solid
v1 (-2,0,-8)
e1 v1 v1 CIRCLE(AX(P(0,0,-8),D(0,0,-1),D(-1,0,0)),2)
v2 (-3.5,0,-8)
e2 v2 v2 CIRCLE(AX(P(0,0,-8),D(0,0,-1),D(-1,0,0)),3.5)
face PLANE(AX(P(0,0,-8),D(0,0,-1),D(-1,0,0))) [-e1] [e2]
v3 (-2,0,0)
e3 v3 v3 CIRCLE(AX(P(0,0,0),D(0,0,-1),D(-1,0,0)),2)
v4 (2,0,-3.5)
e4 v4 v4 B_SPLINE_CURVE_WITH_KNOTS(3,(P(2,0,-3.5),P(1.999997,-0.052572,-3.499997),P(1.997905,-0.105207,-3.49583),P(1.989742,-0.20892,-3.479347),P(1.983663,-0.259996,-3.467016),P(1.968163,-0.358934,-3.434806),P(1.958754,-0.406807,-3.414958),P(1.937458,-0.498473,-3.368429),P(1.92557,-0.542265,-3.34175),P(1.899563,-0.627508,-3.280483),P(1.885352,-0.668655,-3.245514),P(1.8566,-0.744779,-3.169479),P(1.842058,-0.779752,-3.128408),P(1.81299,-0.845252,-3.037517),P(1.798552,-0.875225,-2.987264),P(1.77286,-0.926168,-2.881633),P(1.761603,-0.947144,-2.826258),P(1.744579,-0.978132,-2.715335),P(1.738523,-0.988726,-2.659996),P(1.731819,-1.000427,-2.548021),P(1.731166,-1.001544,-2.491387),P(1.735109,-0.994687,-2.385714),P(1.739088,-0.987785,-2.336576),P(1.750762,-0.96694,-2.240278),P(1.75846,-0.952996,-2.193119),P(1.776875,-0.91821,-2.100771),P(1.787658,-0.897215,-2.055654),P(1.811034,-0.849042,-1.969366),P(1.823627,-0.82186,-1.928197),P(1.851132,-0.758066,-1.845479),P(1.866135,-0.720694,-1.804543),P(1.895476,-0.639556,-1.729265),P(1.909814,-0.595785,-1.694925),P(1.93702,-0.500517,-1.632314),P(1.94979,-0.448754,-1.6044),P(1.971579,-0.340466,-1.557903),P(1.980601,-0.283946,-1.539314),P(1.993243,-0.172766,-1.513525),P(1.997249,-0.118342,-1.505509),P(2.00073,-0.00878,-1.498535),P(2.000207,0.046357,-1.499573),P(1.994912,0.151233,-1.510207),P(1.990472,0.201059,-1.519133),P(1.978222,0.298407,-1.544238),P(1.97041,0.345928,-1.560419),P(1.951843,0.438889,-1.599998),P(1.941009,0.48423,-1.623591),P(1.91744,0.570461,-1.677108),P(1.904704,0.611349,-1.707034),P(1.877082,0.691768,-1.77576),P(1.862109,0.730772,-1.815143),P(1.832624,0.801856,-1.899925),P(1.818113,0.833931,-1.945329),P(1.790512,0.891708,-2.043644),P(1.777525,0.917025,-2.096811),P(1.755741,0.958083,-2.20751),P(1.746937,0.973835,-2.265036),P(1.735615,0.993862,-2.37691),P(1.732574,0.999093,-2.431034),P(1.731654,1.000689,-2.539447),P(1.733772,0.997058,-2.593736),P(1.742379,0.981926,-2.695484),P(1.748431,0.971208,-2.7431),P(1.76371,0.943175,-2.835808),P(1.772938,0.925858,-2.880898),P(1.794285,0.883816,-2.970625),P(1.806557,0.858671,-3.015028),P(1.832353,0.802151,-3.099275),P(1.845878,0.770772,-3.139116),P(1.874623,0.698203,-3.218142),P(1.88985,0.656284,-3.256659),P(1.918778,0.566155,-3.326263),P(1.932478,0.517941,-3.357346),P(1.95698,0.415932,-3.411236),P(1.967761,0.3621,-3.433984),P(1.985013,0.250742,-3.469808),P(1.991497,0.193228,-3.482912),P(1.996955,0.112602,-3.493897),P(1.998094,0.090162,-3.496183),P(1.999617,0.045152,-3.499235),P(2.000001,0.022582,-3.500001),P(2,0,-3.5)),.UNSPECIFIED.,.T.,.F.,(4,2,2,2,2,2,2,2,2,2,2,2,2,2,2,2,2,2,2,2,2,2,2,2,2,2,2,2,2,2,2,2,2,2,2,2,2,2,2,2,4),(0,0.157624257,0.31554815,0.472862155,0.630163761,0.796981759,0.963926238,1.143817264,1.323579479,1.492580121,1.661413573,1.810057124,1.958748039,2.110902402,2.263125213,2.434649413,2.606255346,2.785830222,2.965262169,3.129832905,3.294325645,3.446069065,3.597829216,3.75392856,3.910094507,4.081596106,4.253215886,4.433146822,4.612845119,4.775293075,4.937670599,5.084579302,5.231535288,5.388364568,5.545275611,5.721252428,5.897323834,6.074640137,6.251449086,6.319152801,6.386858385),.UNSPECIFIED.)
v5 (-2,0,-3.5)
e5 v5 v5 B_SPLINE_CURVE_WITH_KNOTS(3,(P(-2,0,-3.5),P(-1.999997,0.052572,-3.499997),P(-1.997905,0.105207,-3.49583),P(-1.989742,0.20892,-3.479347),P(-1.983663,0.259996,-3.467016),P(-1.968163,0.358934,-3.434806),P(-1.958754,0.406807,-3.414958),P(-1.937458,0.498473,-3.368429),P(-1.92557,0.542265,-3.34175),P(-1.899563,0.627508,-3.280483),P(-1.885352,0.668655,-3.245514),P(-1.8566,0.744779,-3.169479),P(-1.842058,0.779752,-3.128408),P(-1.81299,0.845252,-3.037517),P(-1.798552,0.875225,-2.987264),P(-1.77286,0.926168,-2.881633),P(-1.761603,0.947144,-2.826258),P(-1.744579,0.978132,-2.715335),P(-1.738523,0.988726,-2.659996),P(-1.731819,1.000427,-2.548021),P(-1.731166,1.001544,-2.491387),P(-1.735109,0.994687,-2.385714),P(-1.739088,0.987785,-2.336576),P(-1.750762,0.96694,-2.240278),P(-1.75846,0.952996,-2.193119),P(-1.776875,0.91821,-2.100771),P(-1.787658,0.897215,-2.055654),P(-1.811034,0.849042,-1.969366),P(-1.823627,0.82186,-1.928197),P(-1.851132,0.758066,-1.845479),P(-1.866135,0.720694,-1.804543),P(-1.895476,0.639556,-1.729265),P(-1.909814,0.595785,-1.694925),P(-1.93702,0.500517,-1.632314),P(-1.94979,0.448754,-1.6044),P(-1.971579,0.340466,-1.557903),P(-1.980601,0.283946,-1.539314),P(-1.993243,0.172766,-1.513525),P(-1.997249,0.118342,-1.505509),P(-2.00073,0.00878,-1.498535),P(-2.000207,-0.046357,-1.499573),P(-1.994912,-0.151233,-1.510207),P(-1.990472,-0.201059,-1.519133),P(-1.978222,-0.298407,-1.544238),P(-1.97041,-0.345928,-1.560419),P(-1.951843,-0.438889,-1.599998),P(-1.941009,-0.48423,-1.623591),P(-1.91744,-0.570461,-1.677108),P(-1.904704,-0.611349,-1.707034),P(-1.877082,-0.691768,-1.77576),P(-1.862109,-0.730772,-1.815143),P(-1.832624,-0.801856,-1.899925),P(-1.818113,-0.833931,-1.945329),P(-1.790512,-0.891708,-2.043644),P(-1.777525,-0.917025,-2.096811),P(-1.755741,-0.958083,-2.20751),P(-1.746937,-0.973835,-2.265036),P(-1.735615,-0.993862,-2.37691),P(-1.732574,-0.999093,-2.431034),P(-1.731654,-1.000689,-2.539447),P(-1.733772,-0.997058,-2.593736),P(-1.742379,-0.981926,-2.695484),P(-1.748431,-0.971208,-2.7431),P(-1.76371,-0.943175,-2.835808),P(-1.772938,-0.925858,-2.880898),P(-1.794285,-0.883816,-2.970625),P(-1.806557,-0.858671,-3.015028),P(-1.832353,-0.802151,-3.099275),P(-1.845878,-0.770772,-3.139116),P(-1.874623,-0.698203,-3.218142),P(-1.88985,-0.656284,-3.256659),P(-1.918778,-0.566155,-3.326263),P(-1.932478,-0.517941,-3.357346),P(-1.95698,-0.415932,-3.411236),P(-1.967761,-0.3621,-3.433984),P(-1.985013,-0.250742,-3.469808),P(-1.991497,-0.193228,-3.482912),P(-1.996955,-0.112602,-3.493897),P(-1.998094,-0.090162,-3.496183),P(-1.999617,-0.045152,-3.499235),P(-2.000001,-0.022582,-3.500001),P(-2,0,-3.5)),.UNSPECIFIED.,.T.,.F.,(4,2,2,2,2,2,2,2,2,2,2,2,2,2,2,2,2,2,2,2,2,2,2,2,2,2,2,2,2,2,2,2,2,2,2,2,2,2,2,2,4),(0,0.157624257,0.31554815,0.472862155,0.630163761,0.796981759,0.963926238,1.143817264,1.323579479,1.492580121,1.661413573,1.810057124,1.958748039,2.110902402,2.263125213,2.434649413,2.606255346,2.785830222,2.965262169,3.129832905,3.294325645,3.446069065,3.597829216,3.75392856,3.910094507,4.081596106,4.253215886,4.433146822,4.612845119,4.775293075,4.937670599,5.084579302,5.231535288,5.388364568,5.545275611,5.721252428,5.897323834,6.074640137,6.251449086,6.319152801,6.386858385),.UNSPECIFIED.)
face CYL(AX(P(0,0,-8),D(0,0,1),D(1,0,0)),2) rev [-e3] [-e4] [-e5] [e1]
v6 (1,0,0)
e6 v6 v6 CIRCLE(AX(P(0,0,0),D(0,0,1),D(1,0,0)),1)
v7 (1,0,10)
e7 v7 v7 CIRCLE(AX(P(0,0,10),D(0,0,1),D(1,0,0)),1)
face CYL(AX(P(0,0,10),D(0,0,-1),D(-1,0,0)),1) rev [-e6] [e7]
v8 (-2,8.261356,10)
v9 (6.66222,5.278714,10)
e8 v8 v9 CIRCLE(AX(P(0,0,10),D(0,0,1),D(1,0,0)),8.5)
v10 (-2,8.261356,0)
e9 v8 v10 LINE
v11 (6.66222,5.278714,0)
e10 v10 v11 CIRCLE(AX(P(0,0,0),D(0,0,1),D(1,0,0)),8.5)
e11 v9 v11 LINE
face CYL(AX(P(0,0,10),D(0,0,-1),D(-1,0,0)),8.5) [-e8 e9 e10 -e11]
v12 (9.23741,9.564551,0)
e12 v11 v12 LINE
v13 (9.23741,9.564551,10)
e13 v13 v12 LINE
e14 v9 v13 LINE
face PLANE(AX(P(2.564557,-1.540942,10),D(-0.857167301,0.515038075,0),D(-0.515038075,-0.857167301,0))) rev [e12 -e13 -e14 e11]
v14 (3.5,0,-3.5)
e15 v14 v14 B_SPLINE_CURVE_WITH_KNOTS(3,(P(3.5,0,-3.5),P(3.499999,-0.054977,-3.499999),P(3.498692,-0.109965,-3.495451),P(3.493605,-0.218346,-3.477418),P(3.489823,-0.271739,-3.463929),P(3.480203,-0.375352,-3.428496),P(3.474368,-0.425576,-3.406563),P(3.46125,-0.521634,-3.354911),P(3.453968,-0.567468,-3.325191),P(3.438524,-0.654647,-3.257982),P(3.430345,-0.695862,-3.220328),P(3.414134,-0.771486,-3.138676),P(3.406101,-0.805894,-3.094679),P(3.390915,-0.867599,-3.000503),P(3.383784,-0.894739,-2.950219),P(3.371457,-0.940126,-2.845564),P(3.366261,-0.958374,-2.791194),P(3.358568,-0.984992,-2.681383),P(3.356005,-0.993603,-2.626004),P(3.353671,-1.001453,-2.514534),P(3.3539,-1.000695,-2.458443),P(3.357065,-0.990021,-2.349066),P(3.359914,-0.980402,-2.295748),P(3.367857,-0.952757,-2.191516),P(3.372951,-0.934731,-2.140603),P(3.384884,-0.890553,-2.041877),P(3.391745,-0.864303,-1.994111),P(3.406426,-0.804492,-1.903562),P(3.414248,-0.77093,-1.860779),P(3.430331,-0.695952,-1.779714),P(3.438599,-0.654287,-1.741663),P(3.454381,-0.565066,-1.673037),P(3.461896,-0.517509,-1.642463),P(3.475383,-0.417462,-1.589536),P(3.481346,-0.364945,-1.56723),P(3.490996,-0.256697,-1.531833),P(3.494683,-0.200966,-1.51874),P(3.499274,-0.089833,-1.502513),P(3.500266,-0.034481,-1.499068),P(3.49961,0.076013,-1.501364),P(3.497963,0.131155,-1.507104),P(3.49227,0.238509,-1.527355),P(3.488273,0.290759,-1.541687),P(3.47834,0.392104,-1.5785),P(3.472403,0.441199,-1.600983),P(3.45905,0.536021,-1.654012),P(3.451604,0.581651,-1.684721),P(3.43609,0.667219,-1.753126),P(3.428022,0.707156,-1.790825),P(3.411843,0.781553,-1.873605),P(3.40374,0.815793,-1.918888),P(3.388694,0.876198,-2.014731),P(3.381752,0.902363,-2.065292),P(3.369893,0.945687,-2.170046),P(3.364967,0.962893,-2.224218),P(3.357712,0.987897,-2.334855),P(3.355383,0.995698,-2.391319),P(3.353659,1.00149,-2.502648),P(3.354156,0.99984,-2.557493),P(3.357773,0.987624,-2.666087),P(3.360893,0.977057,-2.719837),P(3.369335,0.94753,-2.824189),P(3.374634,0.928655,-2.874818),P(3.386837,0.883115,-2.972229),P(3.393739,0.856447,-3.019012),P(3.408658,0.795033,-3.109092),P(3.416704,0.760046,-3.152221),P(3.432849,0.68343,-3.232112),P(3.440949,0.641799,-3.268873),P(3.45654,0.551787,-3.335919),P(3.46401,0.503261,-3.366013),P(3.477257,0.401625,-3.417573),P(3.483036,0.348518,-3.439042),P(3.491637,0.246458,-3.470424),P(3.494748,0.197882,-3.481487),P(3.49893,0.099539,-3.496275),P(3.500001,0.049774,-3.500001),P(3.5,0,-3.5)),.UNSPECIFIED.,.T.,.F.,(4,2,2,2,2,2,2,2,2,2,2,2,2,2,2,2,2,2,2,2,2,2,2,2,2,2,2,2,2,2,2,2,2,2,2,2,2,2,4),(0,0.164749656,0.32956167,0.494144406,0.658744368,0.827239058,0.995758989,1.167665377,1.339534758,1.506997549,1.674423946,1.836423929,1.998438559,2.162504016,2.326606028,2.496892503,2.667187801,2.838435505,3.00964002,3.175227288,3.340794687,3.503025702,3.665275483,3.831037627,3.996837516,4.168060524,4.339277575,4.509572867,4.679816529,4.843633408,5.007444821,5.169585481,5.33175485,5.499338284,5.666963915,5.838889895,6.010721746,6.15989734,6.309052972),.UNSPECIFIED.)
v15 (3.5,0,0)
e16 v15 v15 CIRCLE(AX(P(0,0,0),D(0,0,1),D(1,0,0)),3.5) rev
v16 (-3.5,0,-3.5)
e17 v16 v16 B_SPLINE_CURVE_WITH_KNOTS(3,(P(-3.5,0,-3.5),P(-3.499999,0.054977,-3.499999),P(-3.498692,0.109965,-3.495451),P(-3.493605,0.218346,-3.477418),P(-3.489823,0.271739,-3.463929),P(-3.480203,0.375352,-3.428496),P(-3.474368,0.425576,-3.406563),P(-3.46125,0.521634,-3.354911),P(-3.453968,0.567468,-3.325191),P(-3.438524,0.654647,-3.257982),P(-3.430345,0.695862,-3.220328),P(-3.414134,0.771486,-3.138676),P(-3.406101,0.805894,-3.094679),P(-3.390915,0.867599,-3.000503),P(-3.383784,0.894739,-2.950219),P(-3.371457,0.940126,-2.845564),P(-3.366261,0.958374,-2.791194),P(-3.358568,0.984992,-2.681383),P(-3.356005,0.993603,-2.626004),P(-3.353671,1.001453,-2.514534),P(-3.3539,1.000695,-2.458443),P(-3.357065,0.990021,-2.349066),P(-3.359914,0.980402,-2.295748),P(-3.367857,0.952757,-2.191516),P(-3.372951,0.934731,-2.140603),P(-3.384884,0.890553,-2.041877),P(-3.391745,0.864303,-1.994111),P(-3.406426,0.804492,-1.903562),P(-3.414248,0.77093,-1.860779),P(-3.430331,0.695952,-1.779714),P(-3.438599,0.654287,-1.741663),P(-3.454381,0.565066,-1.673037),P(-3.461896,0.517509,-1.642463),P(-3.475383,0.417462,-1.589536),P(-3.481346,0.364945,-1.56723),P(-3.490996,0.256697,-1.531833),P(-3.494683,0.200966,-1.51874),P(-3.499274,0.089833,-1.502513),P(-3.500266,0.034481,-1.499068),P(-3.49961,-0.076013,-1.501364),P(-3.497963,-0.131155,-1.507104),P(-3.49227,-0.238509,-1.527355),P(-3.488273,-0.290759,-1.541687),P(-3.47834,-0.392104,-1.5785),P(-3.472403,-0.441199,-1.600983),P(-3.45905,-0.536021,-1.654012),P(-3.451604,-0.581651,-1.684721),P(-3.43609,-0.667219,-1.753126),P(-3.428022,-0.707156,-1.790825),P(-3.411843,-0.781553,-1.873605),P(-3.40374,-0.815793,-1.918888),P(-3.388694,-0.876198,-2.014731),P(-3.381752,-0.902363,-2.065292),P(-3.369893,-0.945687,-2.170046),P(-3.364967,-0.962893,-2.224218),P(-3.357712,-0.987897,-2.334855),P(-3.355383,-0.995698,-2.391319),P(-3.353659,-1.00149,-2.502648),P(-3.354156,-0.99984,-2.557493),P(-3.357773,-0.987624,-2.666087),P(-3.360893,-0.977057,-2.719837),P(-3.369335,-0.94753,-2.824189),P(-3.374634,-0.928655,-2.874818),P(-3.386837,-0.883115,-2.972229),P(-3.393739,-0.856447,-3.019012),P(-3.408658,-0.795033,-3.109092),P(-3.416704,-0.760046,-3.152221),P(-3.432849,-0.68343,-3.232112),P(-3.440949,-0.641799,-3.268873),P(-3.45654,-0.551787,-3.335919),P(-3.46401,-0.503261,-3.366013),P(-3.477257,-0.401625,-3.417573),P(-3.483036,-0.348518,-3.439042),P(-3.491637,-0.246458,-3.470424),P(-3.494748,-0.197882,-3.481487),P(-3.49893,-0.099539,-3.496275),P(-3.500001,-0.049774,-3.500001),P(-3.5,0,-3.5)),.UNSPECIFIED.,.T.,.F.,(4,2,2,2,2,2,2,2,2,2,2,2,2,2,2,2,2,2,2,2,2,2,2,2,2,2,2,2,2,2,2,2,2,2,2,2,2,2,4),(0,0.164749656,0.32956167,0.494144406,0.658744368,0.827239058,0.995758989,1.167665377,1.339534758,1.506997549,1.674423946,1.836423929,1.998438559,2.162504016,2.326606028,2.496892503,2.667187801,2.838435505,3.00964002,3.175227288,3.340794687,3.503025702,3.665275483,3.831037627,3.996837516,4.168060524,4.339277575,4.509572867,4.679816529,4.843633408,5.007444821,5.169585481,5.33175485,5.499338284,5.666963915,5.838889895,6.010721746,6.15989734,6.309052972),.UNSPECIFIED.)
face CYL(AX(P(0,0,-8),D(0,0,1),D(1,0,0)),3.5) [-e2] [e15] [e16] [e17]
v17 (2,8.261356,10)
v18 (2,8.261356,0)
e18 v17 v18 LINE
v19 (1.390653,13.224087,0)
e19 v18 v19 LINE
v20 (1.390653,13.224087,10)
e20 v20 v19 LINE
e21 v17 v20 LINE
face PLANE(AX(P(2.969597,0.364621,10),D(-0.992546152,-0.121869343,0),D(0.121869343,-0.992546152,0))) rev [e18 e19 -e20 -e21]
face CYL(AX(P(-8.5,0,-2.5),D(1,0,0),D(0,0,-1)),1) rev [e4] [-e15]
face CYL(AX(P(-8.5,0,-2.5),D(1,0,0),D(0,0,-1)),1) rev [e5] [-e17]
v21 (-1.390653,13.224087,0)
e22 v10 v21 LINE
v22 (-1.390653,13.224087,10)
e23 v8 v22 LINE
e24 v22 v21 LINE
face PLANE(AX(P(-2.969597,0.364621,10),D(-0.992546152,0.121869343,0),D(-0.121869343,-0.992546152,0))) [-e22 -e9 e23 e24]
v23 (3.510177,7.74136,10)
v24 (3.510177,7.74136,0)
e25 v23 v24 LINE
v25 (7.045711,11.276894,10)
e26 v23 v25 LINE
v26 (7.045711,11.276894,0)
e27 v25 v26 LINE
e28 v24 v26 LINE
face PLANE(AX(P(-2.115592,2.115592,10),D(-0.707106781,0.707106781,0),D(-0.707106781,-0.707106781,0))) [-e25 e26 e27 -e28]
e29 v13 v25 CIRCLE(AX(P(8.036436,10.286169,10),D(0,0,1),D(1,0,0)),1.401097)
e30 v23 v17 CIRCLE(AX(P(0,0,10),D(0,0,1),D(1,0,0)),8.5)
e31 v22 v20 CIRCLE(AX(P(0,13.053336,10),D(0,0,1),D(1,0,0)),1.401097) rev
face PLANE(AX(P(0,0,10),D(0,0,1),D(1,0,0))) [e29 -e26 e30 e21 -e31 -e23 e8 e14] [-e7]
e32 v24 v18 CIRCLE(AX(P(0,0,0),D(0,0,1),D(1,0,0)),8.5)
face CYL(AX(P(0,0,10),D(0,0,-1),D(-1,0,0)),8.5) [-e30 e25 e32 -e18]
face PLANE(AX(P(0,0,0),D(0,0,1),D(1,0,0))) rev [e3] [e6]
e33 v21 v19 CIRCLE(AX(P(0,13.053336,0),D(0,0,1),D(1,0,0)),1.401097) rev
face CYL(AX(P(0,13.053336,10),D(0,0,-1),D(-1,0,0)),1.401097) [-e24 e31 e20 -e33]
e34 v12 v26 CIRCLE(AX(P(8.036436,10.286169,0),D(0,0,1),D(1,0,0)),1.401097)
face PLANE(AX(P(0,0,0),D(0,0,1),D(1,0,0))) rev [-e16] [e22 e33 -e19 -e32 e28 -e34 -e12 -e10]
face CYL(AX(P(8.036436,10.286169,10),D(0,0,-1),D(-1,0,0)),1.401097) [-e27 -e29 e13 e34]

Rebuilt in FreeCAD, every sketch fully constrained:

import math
import FreeCAD as App
import Part
import Sketcher
from FreeCAD import Vector
Q = App.Units.Quantity

doc = App.newDocument("Part")
params = doc.addObject("Spreadsheet::Sheet", "Params")
for row, (alias, value) in enumerate([
    ("sketch1_diameter", "2 mm"),
    ("sketch1_radius", "8.5 mm"),
    ("sketch1_length", "5 mm"),
    ("pad1_length", "10 mm"),
    ("sketch2_diameter", "7 mm"),
    ("sketch2_diameter2", "4 mm"),
    ("pad2_length", "8 mm"),
    ("sketch3_diameter", "2 mm"),
], start=1):
    params.set(f"A{row}", alias)
    params.set(f"B{row}", "=" + value)
    params.setAlias(f"B{row}", alias)

body = doc.addObject("PartDesign::Body", "Body")

sketch1 = body.newObject("Sketcher::SketchObject", "Sketch")
sketch1.AttachmentSupport = (doc.getObject("XY_Plane"), [""])
sketch1.MapMode = "FlatFace"
sketch1.addGeometry([
    Part.LineSegment(Vector(-1.4, 13.2, 0), Vector(-2, 8.3, 0)),
    Part.ArcOfCircle(Part.Circle(Vector(0, 0, 0), Vector(0, 0, 1), 8.5), math.radians(104), math.radians(398)),
    Part.LineSegment(Vector(6.7, 5.3, 0), Vector(9.2, 9.6, 0)),
    Part.ArcOfCircle(Part.Circle(Vector(8, 10.3, 0), Vector(0, 0, 1), 1.4), math.radians(-31), math.radians(135)),
    Part.LineSegment(Vector(7, 11.3, 0), Vector(3.5, 7.7, 0)),
    Part.ArcOfCircle(Part.Circle(Vector(0, 0, 0), Vector(0, 0, 1), 8.5), math.radians(65.61), math.radians(76.39)),
    Part.LineSegment(Vector(2, 8.3, 0), Vector(1.4, 13.2, 0)),
    Part.ArcOfCircle(Part.Circle(Vector(0, 13.1, 0), Vector(0, 0, 1), 1.4), math.radians(7), math.radians(173)),
    Part.Circle(Vector(0, 0, 0), Vector(0, 0, 1), 1),
], False)
sketch1.addConstraint([
    Sketcher.Constraint("Coincident", 0, 2, 1, 1),
    Sketcher.Constraint("Coincident", 1, 2, 2, 1),
    Sketcher.Constraint("Tangent", 2, 2, 3, 1),
    Sketcher.Constraint("Tangent", 3, 2, 4, 1),
    Sketcher.Constraint("Coincident", 4, 2, 5, 1),
    Sketcher.Constraint("Coincident", 5, 2, 6, 1),
    Sketcher.Constraint("Tangent", 6, 2, 7, 1),
    Sketcher.Constraint("Tangent", 7, 2, 0, 1),
    Sketcher.Constraint("Coincident", 1, 3, -1, 1),
    Sketcher.Constraint("Coincident", 5, 3, -1, 1),
    Sketcher.Constraint("Coincident", 8, 3, -1, 1),
    Sketcher.Constraint("Equal", 1, 5),
    Sketcher.Constraint("Equal", 3, 7),
    Sketcher.Constraint("Symmetric", 6, 2, 7, 2, -2),
    Sketcher.Constraint("Equal", 0, 2),
    Sketcher.Constraint("Equal", 2, 4),
    Sketcher.Constraint("Diameter", 8, 2.0),
    Sketcher.Constraint("Radius", 1, 8.5),
    Sketcher.Constraint("Angle", 0, Q("-97 deg")),
    Sketcher.Constraint("Angle", 2, Q("59 deg")),
    Sketcher.Constraint("Angle", 4, Q("-135 deg")),
    Sketcher.Constraint("Distance", 0, 5.0),
    Sketcher.Constraint("DistanceX", 0, 2, -1, 1, 2.0),
])
sketch1.setExpression("Constraints[16]", "Params.sketch1_diameter")
sketch1.setExpression("Constraints[17]", "Params.sketch1_radius")
sketch1.setExpression("Constraints[21]", "Params.sketch1_length")
pad1 = body.newObject("PartDesign::Pad", "Pad")
pad1.Profile = sketch1
pad1.setExpression("Length", "Params.pad1_length")

sketch2 = body.newObject("Sketcher::SketchObject", "Sketch001")
sketch2.AttachmentSupport = (doc.getObject("XY_Plane"), [""])
sketch2.MapMode = "FlatFace"
sketch2.addGeometry([
    Part.Circle(Vector(0, 0, 0), Vector(0, 0, 1), 3.5),
    Part.Circle(Vector(0, 0, 0), Vector(0, 0, 1), 2),
], False)
sketch2.addConstraint([
    Sketcher.Constraint("Coincident", 0, 3, -1, 1),
    Sketcher.Constraint("Coincident", 1, 3, -1, 1),
    Sketcher.Constraint("Diameter", 0, 7.0),
    Sketcher.Constraint("Diameter", 1, 4.0),
])
sketch2.setExpression("Constraints[2]", "Params.sketch2_diameter")
sketch2.setExpression("Constraints[3]", "Params.sketch2_diameter2")
pad2 = body.newObject("PartDesign::Pad", "Pad001")
pad2.Profile = sketch2
pad2.setExpression("Length", "Params.pad2_length")
pad2.Reversed = True

sketch3 = body.newObject("Sketcher::SketchObject", "Sketch002")
sketch3.AttachmentSupport = (doc.getObject("YZ_Plane"), [""])
sketch3.MapMode = "FlatFace"
sketch3.addGeometry(Part.Circle(Vector(0, -2.5, 0), Vector(0, 0, 1), 1), False)
sketch3.addConstraint([
    Sketcher.Constraint("PointOnObject", 0, 3, -2),
    Sketcher.Constraint("Diameter", 0, 2.0),
    Sketcher.Constraint("DistanceY", 0, 3, -1, 1, 2.5),
])
sketch3.setExpression("Constraints[1]", "Params.sketch3_diameter")
pocket1 = body.newObject("PartDesign::Pocket", "Pocket")
pocket1.Profile = sketch3
pocket1.Type = "ThroughAll"
pocket1.Midplane = True

doc.recompute()
